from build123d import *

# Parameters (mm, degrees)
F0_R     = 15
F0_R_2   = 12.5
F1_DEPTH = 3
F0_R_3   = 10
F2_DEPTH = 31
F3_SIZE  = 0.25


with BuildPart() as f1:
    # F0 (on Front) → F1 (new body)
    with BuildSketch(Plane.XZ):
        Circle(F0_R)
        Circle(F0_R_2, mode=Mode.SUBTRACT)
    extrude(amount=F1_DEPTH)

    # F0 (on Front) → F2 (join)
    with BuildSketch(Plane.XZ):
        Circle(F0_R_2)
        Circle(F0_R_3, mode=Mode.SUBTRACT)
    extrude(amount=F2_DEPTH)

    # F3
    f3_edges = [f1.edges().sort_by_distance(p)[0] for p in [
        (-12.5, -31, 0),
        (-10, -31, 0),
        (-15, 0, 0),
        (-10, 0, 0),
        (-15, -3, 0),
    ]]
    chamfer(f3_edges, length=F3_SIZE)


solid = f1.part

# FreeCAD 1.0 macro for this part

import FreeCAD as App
import Part
import Sketcher
Q = App.Units.Quantity


def edges_at(feature, points):
    """Names of the edges that pass closest to the given points."""
    edges = feature.Shape.Edges
    near = lambda p: min(range(len(edges)), key=lambda i: edges[i].distToShape(Part.Vertex(*p))[0])
    return sorted({f"Edge{near(p) + 1}" for p in points})

doc = App.newDocument("Part")
body = doc.addObject("PartDesign::Body", "Body")

# Sketch on XZ plane
sketch1 = body.newObject("Sketcher::SketchObject", "Sketch")
sketch1.AttachmentSupport = (doc.getObject("XZ_Plane"), [""])
sketch1.MapMode = "FlatFace"
sketch1.addGeometry(Part.Circle(App.Vector(0, 0, 0), App.Vector(0, 0, 1), 15), False)
sketch1.addGeometry(Part.Circle(App.Vector(0, 0, 0), App.Vector(0, 0, 1), 12), False)
sketch1.addConstraint(Sketcher.Constraint("Coincident", 0, 3, -1, 1))
sketch1.addConstraint(Sketcher.Constraint("Coincident", 1, 3, -1, 1))
sketch1.addConstraint(Sketcher.Constraint("Diameter", 0, Q("30 mm")))
sketch1.addConstraint(Sketcher.Constraint("Diameter", 1, Q("25 mm")))
pad1 = body.newObject("PartDesign::Pad", "Pad")
pad1.Profile = sketch1
pad1.Length = 3

# Sketch on XZ plane
sketch2 = body.newObject("Sketcher::SketchObject", "Sketch001")
sketch2.AttachmentSupport = (doc.getObject("XZ_Plane"), [""])
sketch2.MapMode = "FlatFace"
sketch2.addGeometry(Part.Circle(App.Vector(0, 0, 0), App.Vector(0, 0, 1), 12), False)
sketch2.addGeometry(Part.Circle(App.Vector(0, 0, 0), App.Vector(0, 0, 1), 10), False)
sketch2.addConstraint(Sketcher.Constraint("Coincident", 0, 3, -1, 1))
sketch2.addConstraint(Sketcher.Constraint("Coincident", 1, 3, -1, 1))
sketch2.addConstraint(Sketcher.Constraint("Diameter", 0, Q("25 mm")))
sketch2.addConstraint(Sketcher.Constraint("Diameter", 1, Q("20 mm")))
pad2 = body.newObject("PartDesign::Pad", "Pad001")
pad2.Profile = sketch2
pad2.Length = 31
doc.recompute()

chamfer = body.newObject("PartDesign::Chamfer", "Chamfer")
chamfer.Base = (pad2, edges_at(pad2, [
    (-12.5, -31, 0),
    (-10, -31, 0),
    (-15, 0, 0),
    (-10, 0, 0),
    (-15, -3, 0),
]))
chamfer.Size = 0.25

doc.recompute()
